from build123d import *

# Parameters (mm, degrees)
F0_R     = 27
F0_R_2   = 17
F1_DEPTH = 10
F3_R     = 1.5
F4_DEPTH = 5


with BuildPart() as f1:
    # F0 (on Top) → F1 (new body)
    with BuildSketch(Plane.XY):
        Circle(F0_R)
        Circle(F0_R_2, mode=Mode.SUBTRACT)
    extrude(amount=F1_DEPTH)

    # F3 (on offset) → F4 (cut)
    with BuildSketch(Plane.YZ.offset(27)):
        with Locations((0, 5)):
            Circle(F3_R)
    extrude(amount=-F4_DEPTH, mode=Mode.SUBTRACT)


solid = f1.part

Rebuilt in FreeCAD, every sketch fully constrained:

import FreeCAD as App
import Part
import Sketcher

doc = App.newDocument("Part")
body = doc.addObject("PartDesign::Body", "Body")

# Sketch on XY plane
sketch1 = body.newObject("Sketcher::SketchObject", "Sketch")
sketch1.AttachmentSupport = (doc.getObject("XY_Plane"), [""])
sketch1.MapMode = "FlatFace"
sketch1.addGeometry(Part.Circle(App.Vector(0, 0, 0), App.Vector(0, 0, 1), 27), False)
sketch1.addGeometry(Part.Circle(App.Vector(0, 0, 0), App.Vector(0, 0, 1), 17), False)
sketch1.addConstraint(Sketcher.Constraint("Coincident", 0, 3, -1, 1))
sketch1.addConstraint(Sketcher.Constraint("Coincident", 1, 3, -1, 1))
sketch1.addConstraint(Sketcher.Constraint("Diameter", 0, 54.0))
sketch1.addConstraint(Sketcher.Constraint("Diameter", 1, 34.0))
pad1 = body.newObject("PartDesign::Pad", "Pad")
pad1.Profile = sketch1
pad1.Length = 10

# Sketch on YZ plane
sketch2 = body.newObject("Sketcher::SketchObject", "Sketch001")
sketch2.AttachmentSupport = (doc.getObject("YZ_Plane"), [""])
sketch2.MapMode = "FlatFace"
sketch2.AttachmentOffset = App.Placement(App.Vector(0, 0, 27), App.Rotation())
sketch2.addGeometry(Part.Circle(App.Vector(0, 5, 0), App.Vector(0, 0, 1), 1.5), False)
sketch2.addConstraint(Sketcher.Constraint("PointOnObject", 0, 3, -2))
sketch2.addConstraint(Sketcher.Constraint("Diameter", 0, 3.0))
sketch2.addConstraint(Sketcher.Constraint("DistanceY", -1, 1, 0, 3, 5.0))
pocket1 = body.newObject("PartDesign::Pocket", "Pocket")
pocket1.Profile = sketch2
pocket1.Length = 5

doc.recompute()
